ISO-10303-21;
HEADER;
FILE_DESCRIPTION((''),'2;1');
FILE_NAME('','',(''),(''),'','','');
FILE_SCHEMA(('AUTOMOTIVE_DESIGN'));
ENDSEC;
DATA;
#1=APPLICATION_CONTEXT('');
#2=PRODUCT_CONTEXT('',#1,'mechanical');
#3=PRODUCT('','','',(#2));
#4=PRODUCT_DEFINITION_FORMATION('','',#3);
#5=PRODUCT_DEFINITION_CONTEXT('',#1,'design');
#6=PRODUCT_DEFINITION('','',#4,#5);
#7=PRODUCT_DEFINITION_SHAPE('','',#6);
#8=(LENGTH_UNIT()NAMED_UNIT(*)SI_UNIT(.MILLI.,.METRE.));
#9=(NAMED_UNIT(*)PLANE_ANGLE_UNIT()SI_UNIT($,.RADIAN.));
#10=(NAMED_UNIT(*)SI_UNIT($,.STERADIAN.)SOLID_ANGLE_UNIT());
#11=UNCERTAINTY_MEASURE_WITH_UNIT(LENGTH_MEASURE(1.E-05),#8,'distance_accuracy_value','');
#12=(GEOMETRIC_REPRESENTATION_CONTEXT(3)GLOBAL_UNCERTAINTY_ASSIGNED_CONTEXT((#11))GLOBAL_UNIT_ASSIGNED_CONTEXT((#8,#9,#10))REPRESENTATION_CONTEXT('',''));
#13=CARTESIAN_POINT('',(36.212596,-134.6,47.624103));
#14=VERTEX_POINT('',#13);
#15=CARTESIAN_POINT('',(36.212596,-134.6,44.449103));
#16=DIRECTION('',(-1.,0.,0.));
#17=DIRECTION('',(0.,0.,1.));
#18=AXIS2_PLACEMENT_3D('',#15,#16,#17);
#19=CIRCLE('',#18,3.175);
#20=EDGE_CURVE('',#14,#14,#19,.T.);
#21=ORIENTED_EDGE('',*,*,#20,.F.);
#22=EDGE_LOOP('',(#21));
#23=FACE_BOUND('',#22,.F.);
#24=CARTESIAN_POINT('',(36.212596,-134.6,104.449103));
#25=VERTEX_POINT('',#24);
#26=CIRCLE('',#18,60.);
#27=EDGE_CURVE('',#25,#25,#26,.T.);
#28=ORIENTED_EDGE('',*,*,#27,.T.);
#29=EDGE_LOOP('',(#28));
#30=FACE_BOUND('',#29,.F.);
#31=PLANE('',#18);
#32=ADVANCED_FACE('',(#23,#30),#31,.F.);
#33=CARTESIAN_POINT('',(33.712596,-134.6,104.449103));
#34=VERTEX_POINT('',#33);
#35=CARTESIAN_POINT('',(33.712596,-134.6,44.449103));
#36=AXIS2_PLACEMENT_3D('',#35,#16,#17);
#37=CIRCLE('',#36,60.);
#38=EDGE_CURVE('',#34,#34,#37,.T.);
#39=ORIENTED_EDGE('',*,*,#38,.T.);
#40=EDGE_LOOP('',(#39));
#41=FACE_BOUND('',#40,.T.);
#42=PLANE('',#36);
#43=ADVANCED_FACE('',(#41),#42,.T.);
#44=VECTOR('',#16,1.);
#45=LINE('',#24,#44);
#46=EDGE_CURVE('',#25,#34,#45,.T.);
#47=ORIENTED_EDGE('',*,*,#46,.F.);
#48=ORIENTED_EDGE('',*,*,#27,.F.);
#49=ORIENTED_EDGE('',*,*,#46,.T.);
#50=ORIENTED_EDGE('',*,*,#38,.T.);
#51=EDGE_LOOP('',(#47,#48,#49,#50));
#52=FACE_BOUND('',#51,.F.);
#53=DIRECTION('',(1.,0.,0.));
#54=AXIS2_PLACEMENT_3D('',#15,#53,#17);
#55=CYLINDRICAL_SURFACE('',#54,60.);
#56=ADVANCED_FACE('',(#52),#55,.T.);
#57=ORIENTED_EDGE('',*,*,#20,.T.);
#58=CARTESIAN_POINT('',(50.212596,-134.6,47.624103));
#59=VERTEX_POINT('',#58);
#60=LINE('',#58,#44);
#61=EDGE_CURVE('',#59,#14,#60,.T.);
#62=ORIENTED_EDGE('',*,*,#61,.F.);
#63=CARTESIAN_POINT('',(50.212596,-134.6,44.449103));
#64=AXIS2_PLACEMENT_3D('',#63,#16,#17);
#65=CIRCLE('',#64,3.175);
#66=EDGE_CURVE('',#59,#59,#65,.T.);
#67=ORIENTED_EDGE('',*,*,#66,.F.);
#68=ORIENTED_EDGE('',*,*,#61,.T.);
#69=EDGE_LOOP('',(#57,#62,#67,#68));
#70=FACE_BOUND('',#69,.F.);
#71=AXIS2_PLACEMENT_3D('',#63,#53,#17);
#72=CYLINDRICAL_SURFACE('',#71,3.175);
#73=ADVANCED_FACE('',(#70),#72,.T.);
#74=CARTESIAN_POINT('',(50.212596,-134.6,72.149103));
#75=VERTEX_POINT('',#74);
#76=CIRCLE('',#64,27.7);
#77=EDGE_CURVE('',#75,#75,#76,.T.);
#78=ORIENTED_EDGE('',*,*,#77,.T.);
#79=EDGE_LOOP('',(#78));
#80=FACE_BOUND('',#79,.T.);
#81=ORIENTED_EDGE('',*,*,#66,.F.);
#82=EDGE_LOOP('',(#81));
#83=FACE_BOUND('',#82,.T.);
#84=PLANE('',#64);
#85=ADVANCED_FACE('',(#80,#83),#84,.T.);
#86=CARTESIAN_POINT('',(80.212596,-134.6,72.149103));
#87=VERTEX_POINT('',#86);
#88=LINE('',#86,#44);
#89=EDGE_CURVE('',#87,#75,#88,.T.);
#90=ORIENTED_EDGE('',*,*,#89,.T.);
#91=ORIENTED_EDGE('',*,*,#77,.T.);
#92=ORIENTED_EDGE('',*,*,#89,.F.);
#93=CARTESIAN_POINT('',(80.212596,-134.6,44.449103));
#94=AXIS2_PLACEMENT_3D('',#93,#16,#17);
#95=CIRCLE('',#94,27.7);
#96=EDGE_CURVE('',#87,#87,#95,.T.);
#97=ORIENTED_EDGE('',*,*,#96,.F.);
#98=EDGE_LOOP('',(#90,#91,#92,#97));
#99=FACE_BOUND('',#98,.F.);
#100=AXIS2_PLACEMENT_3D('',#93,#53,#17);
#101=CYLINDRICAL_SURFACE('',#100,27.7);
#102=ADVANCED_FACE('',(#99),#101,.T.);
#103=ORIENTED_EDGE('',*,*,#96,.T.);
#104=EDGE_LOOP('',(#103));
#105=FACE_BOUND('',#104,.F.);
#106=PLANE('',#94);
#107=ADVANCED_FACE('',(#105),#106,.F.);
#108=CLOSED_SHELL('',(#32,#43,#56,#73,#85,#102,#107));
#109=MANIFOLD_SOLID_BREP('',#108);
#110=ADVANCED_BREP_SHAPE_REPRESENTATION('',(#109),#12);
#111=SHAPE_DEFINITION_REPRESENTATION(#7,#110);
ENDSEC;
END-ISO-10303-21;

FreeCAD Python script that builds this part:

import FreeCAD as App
import Part
import Sketcher

V = App.Vector
Q = App.Units.Quantity

doc = App.newDocument("Part")
params = doc.addObject("Spreadsheet::Sheet", "Params")
for row, (alias, value) in enumerate([
    ("sketch1_diameter", "6.35 mm"),
    ("pad1_length", "14 mm"),
    ("sketch2_diameter", "55.4 mm"),
    ("pad2_length", "30 mm"),
    ("sketch3_diameter", "120 mm"),
    ("pad3_length", "2.5 mm"),
], start=1):
    params.set(f"A{row}", alias)
    params.set(f"B{row}", "=" + value)
    params.setAlias(f"B{row}", alias)

body = doc.addObject("PartDesign::Body", "Body")

# Sketch on XY plane
sketch1 = doc.addObject("Sketcher::SketchObject", "Sketch")
body.addObject(sketch1)
sketch1.AttachmentSupport = (doc.XY_Plane, [""])
sketch1.MapMode = "FlatFace"
sketch1.AttachmentOffset = App.Placement(V(0, 0, 30), App.Rotation())
sketch1.addGeometry(Part.Circle(V(0, 0, 0), V(0, 0, 1), 3.2), False)
sketch1.addConstraint(Sketcher.Constraint("Coincident", 0, 3, -1, 1))
sketch1.addConstraint(Sketcher.Constraint("Diameter", 0, Q("6.35 mm")))
sketch1.setExpression("Constraints[1]", "Params.sketch1_diameter")
pad1 = doc.addObject("PartDesign::Pad", "Pad")
body.addObject(pad1)
pad1.Profile = sketch1
pad1.setExpression("Length", "Params.pad1_length")
body2 = doc.addObject("PartDesign::Body", "Body001")

# Sketch on XY plane
sketch2 = doc.addObject("Sketcher::SketchObject", "Sketch001")
body2.addObject(sketch2)
sketch2.AttachmentSupport = (doc.getObject("XY_Plane001"), [""])
sketch2.MapMode = "FlatFace"
sketch2.addGeometry(Part.Circle(V(0, 0, 0), V(0, 0, 1), 28), False)
sketch2.addConstraint(Sketcher.Constraint("Coincident", 0, 3, -1, 1))
sketch2.addConstraint(Sketcher.Constraint("Diameter", 0, Q("55.4 mm")))
sketch2.setExpression("Constraints[1]", "Params.sketch2_diameter")
pad2 = doc.addObject("PartDesign::Pad", "Pad001")
body2.addObject(pad2)
pad2.Profile = sketch2
pad2.setExpression("Length", "Params.pad2_length")
doc.recompute()

boolean = doc.addObject("PartDesign::Boolean", "Boolean")
body2.addObject(boolean)
boolean.Type = "Fuse"
boolean.addObjects([body])
body3 = doc.addObject("PartDesign::Body", "Body002")
doc.recompute()

body2.Placement = App.Placement(V(88.412596, -158.1, 45.549103), App.Rotation(V(0, -1, 0), 90))
boolean2 = doc.addObject("PartDesign::Boolean", "Boolean001")
body3.addObject(boolean2)
boolean2.Type = "Fuse"
boolean2.addObjects([body2])
body4 = doc.addObject("PartDesign::Body", "Body003")

# Sketch on YZ plane
sketch3 = doc.addObject("Sketcher::SketchObject", "Sketch002")
body4.addObject(sketch3)
sketch3.AttachmentSupport = (doc.getObject("YZ_Plane003"), [""])
sketch3.MapMode = "FlatFace"
sketch3.AttachmentOffset = App.Placement(V(0, 0, 44.412596), App.Rotation())
sketch3.addGeometry(Part.Circle(V(-158, 46, 0), V(0, 0, 1), 60), False)
sketch3.addConstraint(Sketcher.Constraint("Diameter", 0, Q("120 mm")))
sketch3.addConstraint(Sketcher.Constraint("DistanceX", 0, 3, -1, 1, Q("158.1 mm")))
sketch3.addConstraint(Sketcher.Constraint("DistanceY", -1, 1, 0, 3, Q("45.549103 mm")))
sketch3.setExpression("Constraints[0]", "Params.sketch3_diameter")
pad3 = doc.addObject("PartDesign::Pad", "Pad002")
body4.addObject(pad3)
pad3.Profile = sketch3
pad3.setExpression("Length", "Params.pad3_length")
pad3.Reversed = True
doc.recompute()

boolean3 = doc.addObject("PartDesign::Boolean", "Boolean002")
body4.addObject(boolean3)
boolean3.Type = "Fuse"
boolean3.addObjects([body3])
body5 = doc.addObject("PartDesign::Body", "Body004")
doc.recompute()

body4.Placement = App.Placement(V(-8.2, 23.5, -1.1), App.Rotation(V(0, 0, 1), 0))
boolean4 = doc.addObject("PartDesign::Boolean", "Boolean003")
body5.addObject(boolean4)
boolean4.Type = "Fuse"
boolean4.addObjects([body4])

doc.recompute()
